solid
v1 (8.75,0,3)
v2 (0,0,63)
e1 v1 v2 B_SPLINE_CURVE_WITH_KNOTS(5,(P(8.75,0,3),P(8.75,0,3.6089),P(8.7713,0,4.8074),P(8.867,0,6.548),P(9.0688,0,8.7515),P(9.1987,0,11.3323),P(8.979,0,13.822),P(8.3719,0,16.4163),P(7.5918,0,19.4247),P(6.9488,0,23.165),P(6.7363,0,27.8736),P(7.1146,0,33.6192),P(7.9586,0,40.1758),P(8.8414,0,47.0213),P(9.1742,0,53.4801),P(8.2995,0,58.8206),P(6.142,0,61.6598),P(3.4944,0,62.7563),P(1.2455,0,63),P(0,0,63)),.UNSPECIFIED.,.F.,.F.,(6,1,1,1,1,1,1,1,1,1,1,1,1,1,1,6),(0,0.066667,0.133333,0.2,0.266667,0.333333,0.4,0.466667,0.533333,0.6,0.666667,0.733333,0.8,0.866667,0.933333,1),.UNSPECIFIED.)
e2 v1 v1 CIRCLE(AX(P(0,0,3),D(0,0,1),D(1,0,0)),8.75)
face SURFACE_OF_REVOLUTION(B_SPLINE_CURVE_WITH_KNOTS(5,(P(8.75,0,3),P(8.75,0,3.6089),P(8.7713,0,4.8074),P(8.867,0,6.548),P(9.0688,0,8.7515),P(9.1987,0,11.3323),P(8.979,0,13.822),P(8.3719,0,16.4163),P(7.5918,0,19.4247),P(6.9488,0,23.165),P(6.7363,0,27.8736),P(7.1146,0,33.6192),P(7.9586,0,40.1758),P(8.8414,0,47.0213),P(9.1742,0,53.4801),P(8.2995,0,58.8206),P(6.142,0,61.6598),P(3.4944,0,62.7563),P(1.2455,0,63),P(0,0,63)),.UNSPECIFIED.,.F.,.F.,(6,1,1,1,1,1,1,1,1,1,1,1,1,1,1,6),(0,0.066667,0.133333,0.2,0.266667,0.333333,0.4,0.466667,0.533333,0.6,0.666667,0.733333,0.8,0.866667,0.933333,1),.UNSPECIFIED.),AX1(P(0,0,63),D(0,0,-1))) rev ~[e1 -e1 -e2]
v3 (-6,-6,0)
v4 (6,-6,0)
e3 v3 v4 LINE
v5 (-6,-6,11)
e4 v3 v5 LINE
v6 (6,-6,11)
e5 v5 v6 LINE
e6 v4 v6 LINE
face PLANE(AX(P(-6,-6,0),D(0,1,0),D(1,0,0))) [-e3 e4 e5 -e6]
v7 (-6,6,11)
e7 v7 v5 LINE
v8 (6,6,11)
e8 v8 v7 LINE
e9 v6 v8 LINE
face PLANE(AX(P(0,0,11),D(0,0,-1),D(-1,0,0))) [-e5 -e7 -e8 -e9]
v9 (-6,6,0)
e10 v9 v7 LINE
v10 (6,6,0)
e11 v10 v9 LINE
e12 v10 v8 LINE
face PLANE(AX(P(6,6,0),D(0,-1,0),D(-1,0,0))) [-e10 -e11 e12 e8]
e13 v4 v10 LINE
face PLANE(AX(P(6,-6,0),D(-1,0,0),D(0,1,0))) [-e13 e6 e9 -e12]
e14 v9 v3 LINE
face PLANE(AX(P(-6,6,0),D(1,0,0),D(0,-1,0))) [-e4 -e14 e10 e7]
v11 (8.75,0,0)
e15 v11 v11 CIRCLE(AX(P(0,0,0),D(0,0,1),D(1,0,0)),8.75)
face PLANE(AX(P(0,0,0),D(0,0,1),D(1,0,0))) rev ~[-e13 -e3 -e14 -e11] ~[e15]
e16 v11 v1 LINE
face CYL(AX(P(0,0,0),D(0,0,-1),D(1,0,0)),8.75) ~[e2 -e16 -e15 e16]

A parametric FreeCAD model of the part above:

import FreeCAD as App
import Part
import Sketcher
from FreeCAD import Vector
Q = App.Units.Quantity


def add_polygon(sketch, points):
    """Adds a closed chain of lines whose ends are joined by coincident constraints."""
    first, n = sketch.GeometryCount, len(points)
    for a, b in zip(points, points[1:] + points[:1]):
        sketch.addGeometry(Part.LineSegment(App.Vector(*a, 0), App.Vector(*b, 0)), False)
    for i in range(n):
        sketch.addConstraint(Sketcher.Constraint("Coincident", first + i, 2, first + (i + 1) % n, 1))

doc = App.newDocument("Part")
params = doc.addObject("Spreadsheet::Sheet", "Params")
for row, (alias, value) in enumerate([
    ("sketch1_diameter", "17.5 mm"),
    ("pad1_length", "3 mm"),
    ("revolution_angle", "360 deg"),
    ("sketch3_width", "12 mm"),
    ("pocket1_length", "11 mm"),
], start=1):
    params.set(f"A{row}", alias)
    params.set(f"B{row}", "=" + value)
    params.setAlias(f"B{row}", alias)

body = doc.addObject("PartDesign::Body", "Body")

sketch1 = body.newObject("Sketcher::SketchObject", "Sketch")
sketch1.AttachmentSupport = (doc.getObject("XY_Plane"), [""])
sketch1.MapMode = "FlatFace"
sketch1.addGeometry(Part.Circle(Vector(0, 0, 0), Vector(0, 0, 1), 8.75), False)
sketch1.addConstraint(Sketcher.Constraint("Coincident", 0, 3, -1, 1))
sketch1.addConstraint(Sketcher.Constraint("Diameter", 0, Q("17.5 mm")))
sketch1.setExpression("Constraints[1]", "Params.sketch1_diameter")
pad1 = body.newObject("PartDesign::Pad", "Pad")
pad1.Profile = sketch1
pad1.setExpression("Length", "Params.pad1_length")

sketch2 = body.newObject("Sketcher::SketchObject", "Sketch001")
sketch2.AttachmentSupport = (doc.getObject("XZ_Plane"), [""])
sketch2.MapMode = "FlatFace"
sketch2.addGeometry(Part.LineSegment(Vector(8.75, 3, 0), Vector(0, 3, 0)), False)
sketch2.addGeometry(Part.LineSegment(Vector(0, 3, 0), Vector(0, 63, 0)), False)
sketch2.addGeometry(Part.BSplineCurve([Vector(8.75, 3, 0), Vector(8.75, 3.6089, 0), Vector(8.7713, 4.8074, 0), Vector(8.867, 6.548, 0), Vector(9.0688, 8.7515, 0), Vector(9.1987, 11.3323, 0), Vector(8.979, 13.822, 0), Vector(8.3719, 16.4163, 0), Vector(7.5918, 19.4247, 0), Vector(6.9488, 23.165, 0), Vector(6.7363, 27.8736, 0), Vector(7.1146, 33.6192, 0), Vector(7.9586, 40.1758, 0), Vector(8.8414, 47.0213, 0), Vector(9.1742, 53.4801, 0), Vector(8.2995, 58.8206, 0), Vector(6.142, 61.6598, 0), Vector(3.4944, 62.7563, 0), Vector(1.2455, 63, 0), Vector(0, 63, 0)], [6, 1, 1, 1, 1, 1, 1, 1, 1, 1, 1, 1, 1, 1, 1, 6], [0, 0.066667, 0.133333, 0.2, 0.266667, 0.333333, 0.4, 0.466667, 0.533333, 0.6, 0.666667, 0.733333, 0.8, 0.866667, 0.933333, 1], False, 5, [1, 1, 1, 1, 1, 1, 1, 1, 1, 1, 1, 1, 1, 1, 1, 1, 1, 1, 1, 1], False), False)
sketch2.addConstraint(Sketcher.Constraint("Block", 2))
sketch2.addConstraint(Sketcher.Constraint("Coincident", 0, 2, 1, 1))
sketch2.addConstraint(Sketcher.Constraint("Coincident", 1, 2, 2, 2))
sketch2.addConstraint(Sketcher.Constraint("Coincident", 2, 1, 0, 1))
sketch2.addConstraint(Sketcher.Constraint("Horizontal", 0))
sketch2.addConstraint(Sketcher.Constraint("Vertical", 1))
revolution = body.newObject("PartDesign::Revolution", "Revolution")
revolution.Profile = sketch2
revolution.ReferenceAxis = (sketch2, ["V_Axis"])
revolution.setExpression("Angle", "Params.revolution_angle")

sketch3 = body.newObject("Sketcher::SketchObject", "Sketch002")
sketch3.AttachmentSupport = (doc.getObject("XY_Plane"), [""])
sketch3.MapMode = "FlatFace"
add_polygon(sketch3, [(-6, 6), (6, 6), (6, -6), (-6, -6)])
sketch3.addConstraint(Sketcher.Constraint("Horizontal", 0))
sketch3.addConstraint(Sketcher.Constraint("Vertical", 1))
sketch3.addConstraint(Sketcher.Constraint("Horizontal", 2))
sketch3.addConstraint(Sketcher.Constraint("Vertical", 3))
sketch3.addConstraint(Sketcher.Constraint("Symmetric", 0, 2, 2, 2, -1, 1))
sketch3.addConstraint(Sketcher.Constraint("Equal", 2, 1))
sketch3.addConstraint(Sketcher.Constraint("DistanceX", 0, 1, 0, 2, Q("12 mm")))
sketch3.setExpression("Constraints[10]", "Params.sketch3_width")
pocket1 = body.newObject("PartDesign::Pocket", "Pocket")
pocket1.Profile = sketch3
pocket1.setExpression("Length", "Params.pocket1_length")
pocket1.Reversed = True

doc.recompute()
